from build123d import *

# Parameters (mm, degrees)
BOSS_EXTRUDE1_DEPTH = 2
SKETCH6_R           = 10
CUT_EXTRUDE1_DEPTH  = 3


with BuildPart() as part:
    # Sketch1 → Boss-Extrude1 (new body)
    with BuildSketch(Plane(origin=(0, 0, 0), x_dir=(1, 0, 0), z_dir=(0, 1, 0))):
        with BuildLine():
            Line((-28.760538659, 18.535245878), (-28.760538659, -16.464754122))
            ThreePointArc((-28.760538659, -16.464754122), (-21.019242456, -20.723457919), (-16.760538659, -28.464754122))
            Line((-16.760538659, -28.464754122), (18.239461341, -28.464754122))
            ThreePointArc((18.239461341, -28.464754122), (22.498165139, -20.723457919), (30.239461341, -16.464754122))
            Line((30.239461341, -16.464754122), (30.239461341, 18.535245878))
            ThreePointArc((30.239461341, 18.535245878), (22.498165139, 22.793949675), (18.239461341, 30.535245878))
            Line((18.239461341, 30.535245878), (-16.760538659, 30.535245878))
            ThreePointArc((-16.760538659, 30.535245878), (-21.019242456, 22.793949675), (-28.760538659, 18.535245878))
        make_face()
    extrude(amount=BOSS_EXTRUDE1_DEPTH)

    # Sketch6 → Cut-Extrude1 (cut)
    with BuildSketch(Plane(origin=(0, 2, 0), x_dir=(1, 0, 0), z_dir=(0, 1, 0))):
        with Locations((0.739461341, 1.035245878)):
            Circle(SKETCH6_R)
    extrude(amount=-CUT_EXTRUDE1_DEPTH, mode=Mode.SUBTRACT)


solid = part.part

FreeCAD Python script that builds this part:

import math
import FreeCAD as App
import Part
import Sketcher

V = App.Vector

doc = App.newDocument("Part")
body = doc.addObject("PartDesign::Body", "Body")

sketch1 = body.newObject("Sketcher::SketchObject", "Sketch")
sketch1.AttachmentSupport = (doc.getObject("XZ_Plane"), [""])
sketch1.MapMode = "FlatFace"
sketch1.addGeometry([
    Part.LineSegment(V(-29, -19, 0), V(-29, 16, 0)),
    Part.ArcOfCircle(Part.Circle(V(-32, 32, 0), V(0, 0, 1), 16), math.radians(-77), math.radians(-13)),
    Part.LineSegment(V(-17, 28, 0), V(18, 28, 0)),
    Part.ArcOfCircle(Part.Circle(V(34, 32, 0), V(0, 0, 1), 16), math.radians(-167), math.radians(-103)),
    Part.LineSegment(V(30, 16, 0), V(30, -19, 0)),
    Part.ArcOfCircle(Part.Circle(V(34, -34, 0), V(0, 0, 1), 16), math.radians(103), math.radians(167)),
    Part.LineSegment(V(18, -31, 0), V(-17, -31, 0)),
    Part.ArcOfCircle(Part.Circle(V(-32, -34, 0), V(0, 0, 1), 16), math.radians(13), math.radians(77)),
], False)
sketch1.addConstraint([
    Sketcher.Constraint("Coincident", 0, 2, 1, 1),
    Sketcher.Constraint("Coincident", 1, 2, 2, 1),
    Sketcher.Constraint("Coincident", 2, 2, 3, 1),
    Sketcher.Constraint("Coincident", 3, 2, 4, 1),
    Sketcher.Constraint("Coincident", 4, 2, 5, 1),
    Sketcher.Constraint("Coincident", 5, 2, 6, 1),
    Sketcher.Constraint("Coincident", 6, 2, 7, 1),
    Sketcher.Constraint("Coincident", 7, 2, 0, 1),
    Sketcher.Constraint("Vertical", 0),
    Sketcher.Constraint("Horizontal", 2),
    Sketcher.Constraint("Vertical", 4),
    Sketcher.Constraint("Horizontal", 6),
    Sketcher.Constraint("Equal", 1, 3),
    Sketcher.Constraint("Equal", 3, 5),
    Sketcher.Constraint("Equal", 5, 7),
    Sketcher.Constraint("Horizontal", 1, 3, 3, 3),
    Sketcher.Constraint("Horizontal", 5, 3, 7, 3),
    Sketcher.Constraint("Horizontal", 0, 2, 3, 2),
    Sketcher.Constraint("Horizontal", 4, 2, 7, 2),
    Sketcher.Constraint("Vertical", 3, 3, 5, 3),
    Sketcher.Constraint("Vertical", 2, 2, 5, 2),
    Sketcher.Constraint("Equal", 6, 0),
    Sketcher.Constraint("DistanceX", 2, 1, 2, 2, 35.0),
    Sketcher.Constraint("DistanceX", 0, 2, 1, 2, 12.0),
    Sketcher.Constraint("DistanceY", 0, 2, 1, 2, 12.0),
    Sketcher.Constraint("Radius", 1, 15.850188),
    Sketcher.Constraint("DistanceX", -1, 1, 3, 3, 33.70594),
    Sketcher.Constraint("DistanceY", -1, 1, 1, 3, 31.931233),
])
pad1 = body.newObject("PartDesign::Pad", "Pad")
pad1.Profile = sketch1
pad1.Length = 2
pad1.Reversed = True

sketch2 = body.newObject("Sketcher::SketchObject", "Sketch001")
sketch2.AttachmentSupport = (doc.getObject("XZ_Plane"), [""])
sketch2.MapMode = "FlatFace"
sketch2.AttachmentOffset = App.Placement(V(0, 0, -2), App.Rotation())
sketch2.addGeometry(Part.Circle(V(1, -1, 0), V(0, 0, 1), 10), False)
sketch2.addConstraint([
    Sketcher.Constraint("Diameter", 0, 20.0),
    Sketcher.Constraint("DistanceX", -1, 1, 0, 3, 0.739461),
    Sketcher.Constraint("DistanceY", 0, 3, -1, 1, 1.035246),
])
pocket1 = body.newObject("PartDesign::Pocket", "Pocket")
pocket1.Profile = sketch2
pocket1.Length = 3
pocket1.Reversed = True

doc.recompute()
